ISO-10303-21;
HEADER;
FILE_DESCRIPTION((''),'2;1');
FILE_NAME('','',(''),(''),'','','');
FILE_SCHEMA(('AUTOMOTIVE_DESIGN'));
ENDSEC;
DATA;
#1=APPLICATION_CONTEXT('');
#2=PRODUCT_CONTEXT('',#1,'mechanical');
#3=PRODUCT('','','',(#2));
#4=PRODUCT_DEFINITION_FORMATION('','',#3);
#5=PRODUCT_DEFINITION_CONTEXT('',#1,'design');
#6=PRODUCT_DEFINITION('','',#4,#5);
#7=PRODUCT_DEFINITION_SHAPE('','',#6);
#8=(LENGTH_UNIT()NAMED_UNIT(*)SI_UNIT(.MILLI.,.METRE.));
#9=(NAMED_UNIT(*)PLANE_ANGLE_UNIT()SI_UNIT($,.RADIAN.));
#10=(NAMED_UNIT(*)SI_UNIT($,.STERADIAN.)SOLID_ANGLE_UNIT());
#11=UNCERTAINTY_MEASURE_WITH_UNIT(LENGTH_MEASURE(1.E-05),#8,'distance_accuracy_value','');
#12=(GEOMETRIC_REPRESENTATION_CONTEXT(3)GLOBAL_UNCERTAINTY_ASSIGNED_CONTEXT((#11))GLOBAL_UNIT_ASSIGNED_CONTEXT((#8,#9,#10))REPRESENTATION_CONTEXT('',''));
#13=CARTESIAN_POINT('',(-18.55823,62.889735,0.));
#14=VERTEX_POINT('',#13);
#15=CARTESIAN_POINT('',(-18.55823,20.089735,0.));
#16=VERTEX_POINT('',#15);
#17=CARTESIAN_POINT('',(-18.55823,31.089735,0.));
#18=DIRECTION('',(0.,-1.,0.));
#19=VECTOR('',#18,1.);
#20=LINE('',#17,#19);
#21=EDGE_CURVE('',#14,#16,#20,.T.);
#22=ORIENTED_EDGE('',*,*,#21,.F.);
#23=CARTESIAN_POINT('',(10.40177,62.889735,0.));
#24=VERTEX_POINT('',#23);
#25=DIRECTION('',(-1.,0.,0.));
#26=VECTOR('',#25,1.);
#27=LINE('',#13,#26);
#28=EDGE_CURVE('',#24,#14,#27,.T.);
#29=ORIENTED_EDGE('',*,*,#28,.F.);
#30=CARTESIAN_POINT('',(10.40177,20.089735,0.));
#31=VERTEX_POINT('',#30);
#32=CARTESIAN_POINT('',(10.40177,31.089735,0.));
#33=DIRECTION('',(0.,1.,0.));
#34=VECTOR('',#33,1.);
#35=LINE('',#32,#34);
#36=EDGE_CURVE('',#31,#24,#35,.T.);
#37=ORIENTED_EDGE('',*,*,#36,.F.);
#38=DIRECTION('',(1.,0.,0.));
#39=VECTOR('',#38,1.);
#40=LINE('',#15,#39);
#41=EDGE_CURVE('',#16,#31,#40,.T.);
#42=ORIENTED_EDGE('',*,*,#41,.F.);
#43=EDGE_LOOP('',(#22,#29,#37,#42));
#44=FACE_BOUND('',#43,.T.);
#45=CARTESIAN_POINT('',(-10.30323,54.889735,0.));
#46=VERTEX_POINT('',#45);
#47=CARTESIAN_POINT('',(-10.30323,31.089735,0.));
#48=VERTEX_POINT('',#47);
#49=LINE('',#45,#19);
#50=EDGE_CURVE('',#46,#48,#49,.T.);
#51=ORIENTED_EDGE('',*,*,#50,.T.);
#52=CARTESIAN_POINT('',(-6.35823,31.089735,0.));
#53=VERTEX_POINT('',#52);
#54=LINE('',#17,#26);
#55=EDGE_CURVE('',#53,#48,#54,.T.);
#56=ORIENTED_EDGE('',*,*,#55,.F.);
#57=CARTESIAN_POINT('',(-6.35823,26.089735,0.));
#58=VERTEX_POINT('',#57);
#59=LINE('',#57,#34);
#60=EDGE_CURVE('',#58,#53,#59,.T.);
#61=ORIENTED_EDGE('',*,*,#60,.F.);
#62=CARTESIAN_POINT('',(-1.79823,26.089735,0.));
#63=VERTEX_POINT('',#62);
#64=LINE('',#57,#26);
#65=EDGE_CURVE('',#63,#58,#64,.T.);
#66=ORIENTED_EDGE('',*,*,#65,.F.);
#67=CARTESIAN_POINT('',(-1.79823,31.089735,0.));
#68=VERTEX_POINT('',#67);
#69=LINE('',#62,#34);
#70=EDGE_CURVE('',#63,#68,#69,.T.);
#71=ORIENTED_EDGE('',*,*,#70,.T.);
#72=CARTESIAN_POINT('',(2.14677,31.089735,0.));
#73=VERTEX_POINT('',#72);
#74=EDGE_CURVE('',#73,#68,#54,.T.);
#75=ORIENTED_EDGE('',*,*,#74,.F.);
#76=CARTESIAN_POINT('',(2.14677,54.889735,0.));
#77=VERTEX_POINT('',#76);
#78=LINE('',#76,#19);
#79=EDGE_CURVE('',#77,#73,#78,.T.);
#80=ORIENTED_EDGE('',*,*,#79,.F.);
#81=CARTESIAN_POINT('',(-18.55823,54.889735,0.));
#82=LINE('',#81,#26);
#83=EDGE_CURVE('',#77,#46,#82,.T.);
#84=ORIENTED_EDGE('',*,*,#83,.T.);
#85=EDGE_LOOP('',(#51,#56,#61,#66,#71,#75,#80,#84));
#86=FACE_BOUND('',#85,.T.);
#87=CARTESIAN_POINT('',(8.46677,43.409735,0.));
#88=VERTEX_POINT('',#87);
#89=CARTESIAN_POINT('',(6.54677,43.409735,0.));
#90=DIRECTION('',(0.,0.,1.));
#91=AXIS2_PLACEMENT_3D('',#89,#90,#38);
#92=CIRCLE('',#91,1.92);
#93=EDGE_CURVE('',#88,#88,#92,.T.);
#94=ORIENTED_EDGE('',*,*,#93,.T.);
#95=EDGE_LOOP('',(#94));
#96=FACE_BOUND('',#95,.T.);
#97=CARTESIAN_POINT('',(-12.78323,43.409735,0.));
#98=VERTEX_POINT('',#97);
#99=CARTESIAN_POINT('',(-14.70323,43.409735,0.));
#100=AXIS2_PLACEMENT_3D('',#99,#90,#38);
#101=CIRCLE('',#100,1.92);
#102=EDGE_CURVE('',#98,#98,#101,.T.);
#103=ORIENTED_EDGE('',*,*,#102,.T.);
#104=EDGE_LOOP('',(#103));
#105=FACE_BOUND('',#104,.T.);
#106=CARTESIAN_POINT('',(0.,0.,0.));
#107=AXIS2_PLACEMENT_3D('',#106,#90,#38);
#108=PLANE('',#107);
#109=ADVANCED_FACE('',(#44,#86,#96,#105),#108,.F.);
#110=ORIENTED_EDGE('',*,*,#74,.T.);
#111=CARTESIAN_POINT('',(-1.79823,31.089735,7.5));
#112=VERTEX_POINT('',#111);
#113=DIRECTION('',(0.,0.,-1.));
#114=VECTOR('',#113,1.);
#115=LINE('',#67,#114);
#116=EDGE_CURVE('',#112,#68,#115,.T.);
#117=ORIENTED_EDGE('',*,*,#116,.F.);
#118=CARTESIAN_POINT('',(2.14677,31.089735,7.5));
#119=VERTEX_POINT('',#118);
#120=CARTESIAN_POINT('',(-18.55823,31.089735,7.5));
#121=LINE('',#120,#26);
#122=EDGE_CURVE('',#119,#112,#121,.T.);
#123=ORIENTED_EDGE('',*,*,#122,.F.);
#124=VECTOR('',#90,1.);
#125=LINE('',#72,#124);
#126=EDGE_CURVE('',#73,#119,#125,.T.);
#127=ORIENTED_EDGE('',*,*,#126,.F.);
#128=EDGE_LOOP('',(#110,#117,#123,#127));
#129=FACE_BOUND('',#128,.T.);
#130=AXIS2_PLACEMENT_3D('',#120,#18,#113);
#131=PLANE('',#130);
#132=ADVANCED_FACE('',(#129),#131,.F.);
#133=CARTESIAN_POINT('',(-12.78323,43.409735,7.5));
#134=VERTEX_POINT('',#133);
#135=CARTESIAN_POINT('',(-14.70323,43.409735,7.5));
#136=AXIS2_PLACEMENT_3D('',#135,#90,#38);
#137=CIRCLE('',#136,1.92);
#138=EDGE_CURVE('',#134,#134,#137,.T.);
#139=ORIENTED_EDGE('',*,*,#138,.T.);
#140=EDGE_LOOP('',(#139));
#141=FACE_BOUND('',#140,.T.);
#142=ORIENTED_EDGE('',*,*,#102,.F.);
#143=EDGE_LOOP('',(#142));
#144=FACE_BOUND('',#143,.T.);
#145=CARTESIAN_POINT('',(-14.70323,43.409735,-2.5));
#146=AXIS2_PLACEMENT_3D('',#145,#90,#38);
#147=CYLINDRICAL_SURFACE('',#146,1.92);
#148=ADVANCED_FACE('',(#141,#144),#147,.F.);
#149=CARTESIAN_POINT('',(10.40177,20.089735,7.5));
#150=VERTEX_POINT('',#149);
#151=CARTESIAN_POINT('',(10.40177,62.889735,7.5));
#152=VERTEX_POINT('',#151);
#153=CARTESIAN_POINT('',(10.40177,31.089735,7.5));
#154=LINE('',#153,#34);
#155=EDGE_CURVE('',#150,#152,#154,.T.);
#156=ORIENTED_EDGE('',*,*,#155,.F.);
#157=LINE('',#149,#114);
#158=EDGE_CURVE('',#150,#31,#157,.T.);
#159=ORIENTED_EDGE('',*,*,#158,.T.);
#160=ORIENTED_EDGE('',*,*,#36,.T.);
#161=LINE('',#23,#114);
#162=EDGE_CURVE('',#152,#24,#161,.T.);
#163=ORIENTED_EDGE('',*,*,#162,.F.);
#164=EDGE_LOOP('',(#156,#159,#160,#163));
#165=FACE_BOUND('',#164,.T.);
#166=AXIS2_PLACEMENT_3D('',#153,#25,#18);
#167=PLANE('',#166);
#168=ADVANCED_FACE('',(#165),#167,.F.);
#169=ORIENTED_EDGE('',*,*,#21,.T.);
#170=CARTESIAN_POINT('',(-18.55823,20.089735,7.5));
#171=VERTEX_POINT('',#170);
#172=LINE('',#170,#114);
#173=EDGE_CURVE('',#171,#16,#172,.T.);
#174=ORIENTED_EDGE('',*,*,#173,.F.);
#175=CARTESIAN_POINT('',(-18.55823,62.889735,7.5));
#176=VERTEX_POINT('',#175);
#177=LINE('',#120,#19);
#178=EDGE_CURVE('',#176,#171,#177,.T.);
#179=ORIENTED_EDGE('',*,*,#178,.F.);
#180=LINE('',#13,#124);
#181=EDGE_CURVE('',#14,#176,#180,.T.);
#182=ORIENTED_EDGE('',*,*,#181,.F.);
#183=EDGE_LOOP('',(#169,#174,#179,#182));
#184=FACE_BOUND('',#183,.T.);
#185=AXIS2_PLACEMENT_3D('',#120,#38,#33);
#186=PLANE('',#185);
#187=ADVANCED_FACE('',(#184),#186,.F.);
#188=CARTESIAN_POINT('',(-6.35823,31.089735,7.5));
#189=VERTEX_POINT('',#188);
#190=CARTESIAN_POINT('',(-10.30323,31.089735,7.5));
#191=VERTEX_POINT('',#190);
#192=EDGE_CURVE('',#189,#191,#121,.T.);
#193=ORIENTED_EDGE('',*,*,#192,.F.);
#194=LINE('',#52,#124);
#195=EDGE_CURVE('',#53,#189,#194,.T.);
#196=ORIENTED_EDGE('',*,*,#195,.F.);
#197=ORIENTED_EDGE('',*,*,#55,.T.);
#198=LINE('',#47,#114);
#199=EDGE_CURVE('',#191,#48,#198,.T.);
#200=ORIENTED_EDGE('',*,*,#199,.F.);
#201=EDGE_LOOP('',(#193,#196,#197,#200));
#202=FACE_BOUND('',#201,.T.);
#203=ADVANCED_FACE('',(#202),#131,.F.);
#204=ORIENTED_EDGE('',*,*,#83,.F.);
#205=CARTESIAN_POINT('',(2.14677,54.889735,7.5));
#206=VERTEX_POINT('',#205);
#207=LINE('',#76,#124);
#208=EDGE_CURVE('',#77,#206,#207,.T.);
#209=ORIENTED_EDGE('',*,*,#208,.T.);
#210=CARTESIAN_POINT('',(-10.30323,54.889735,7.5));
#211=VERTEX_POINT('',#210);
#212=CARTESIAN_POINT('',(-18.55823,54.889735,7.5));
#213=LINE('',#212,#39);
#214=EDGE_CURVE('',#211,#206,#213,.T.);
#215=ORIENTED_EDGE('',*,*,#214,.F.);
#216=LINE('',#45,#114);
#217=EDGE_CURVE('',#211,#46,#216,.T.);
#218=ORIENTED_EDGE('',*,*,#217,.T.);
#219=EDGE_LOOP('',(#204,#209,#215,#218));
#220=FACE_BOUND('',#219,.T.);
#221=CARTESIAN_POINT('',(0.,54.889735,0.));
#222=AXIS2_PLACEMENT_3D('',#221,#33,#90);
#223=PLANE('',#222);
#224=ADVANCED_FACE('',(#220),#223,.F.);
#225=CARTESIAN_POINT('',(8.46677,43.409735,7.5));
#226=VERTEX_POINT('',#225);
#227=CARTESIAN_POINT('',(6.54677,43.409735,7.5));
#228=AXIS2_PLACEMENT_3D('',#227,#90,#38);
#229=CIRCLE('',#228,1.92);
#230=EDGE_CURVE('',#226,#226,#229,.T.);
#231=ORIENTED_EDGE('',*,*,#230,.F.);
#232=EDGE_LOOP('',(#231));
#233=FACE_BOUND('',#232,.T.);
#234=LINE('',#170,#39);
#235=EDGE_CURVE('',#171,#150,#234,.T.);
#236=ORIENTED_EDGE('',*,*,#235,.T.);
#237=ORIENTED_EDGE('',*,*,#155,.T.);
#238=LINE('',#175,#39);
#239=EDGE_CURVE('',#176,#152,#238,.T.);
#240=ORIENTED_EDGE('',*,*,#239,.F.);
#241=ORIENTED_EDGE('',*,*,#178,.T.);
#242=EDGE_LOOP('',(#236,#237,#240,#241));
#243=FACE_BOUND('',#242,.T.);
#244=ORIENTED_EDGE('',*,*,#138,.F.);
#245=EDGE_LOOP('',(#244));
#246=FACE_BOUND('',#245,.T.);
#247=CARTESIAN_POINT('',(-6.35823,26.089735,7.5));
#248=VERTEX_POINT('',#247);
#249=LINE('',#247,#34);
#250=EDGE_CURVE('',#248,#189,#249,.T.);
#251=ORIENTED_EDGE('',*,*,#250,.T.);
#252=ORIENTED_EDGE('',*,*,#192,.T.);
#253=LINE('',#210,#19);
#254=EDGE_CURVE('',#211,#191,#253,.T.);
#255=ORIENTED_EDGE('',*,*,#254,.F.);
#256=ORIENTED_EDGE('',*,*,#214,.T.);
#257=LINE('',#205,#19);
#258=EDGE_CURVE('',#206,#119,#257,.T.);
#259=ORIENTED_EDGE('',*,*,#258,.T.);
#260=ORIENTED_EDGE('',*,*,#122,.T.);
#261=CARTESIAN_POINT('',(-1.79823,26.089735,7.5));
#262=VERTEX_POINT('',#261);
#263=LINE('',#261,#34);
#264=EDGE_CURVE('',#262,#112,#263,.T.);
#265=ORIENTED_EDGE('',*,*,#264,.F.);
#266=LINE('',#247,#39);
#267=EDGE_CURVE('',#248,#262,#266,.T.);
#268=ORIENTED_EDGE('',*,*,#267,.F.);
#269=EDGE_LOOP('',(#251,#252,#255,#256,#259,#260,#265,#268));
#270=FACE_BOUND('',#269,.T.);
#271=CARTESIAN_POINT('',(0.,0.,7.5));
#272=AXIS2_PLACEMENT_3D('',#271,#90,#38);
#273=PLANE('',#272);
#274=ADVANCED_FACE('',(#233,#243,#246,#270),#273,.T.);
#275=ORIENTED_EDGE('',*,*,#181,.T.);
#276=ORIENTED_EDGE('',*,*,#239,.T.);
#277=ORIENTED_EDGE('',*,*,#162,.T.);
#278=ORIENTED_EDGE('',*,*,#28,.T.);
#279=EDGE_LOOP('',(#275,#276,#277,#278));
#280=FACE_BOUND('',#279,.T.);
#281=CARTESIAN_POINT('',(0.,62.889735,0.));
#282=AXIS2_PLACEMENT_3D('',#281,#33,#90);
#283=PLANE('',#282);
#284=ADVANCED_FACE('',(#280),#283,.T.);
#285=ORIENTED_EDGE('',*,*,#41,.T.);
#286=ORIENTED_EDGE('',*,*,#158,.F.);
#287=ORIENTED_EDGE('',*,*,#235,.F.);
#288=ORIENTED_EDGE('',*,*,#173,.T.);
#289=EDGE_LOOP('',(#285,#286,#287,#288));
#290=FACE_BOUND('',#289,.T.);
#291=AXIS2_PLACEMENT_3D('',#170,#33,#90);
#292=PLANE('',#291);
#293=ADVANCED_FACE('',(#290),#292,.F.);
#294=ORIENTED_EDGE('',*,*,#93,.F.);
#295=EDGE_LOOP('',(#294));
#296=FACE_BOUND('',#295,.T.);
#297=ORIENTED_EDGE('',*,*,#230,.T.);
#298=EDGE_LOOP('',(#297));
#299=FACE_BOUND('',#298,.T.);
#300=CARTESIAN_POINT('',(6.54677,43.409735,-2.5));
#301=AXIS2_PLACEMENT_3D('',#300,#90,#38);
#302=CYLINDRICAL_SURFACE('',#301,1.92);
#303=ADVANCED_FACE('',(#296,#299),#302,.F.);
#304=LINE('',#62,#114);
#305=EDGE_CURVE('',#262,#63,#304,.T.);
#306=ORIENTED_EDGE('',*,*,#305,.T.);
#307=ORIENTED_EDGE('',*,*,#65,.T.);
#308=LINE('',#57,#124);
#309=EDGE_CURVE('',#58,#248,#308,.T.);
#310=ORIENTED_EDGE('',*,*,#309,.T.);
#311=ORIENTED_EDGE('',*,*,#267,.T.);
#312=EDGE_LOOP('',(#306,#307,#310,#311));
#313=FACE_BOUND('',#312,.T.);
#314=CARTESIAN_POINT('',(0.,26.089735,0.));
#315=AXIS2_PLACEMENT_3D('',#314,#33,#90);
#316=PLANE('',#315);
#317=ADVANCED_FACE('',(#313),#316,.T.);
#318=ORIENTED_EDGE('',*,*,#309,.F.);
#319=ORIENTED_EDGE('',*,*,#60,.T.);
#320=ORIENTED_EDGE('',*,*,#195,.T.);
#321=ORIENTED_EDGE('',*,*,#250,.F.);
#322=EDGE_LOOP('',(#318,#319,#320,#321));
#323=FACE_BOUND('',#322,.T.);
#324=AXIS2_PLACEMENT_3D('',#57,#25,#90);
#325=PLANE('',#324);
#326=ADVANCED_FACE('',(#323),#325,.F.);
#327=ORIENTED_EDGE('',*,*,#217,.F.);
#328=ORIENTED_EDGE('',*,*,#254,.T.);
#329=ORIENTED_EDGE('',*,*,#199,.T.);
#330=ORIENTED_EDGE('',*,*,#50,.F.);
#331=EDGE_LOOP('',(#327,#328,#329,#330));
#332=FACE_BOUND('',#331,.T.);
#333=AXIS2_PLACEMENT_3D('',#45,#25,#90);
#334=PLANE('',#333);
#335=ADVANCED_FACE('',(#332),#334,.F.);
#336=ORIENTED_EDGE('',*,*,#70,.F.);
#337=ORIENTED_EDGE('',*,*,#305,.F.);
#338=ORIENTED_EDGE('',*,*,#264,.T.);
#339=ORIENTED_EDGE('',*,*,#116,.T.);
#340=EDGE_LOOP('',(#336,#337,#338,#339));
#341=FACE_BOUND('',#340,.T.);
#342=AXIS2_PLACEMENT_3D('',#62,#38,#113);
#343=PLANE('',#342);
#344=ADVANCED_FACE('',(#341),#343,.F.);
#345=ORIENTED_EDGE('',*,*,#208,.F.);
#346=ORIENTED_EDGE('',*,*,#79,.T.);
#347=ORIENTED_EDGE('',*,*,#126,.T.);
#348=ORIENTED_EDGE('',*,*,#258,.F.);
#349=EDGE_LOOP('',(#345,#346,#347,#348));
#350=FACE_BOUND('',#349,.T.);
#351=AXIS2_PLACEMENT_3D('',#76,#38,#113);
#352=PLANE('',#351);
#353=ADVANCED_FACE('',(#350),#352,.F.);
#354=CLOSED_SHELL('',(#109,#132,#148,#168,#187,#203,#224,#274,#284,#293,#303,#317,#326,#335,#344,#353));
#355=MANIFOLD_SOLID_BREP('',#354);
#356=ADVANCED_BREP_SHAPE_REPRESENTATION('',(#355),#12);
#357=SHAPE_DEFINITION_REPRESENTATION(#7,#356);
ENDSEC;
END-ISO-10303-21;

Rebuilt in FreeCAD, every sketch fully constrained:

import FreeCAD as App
import Part
import Sketcher

V = App.Vector
Q = App.Units.Quantity


def add_polygon(sketch, points):
    """Adds a closed chain of lines whose ends are joined by coincident constraints."""
    first, n = sketch.GeometryCount, len(points)
    for a, b in zip(points, points[1:] + points[:1]):
        sketch.addGeometry(Part.LineSegment(App.Vector(*a, 0), App.Vector(*b, 0)), False)
    for i in range(n):
        sketch.addConstraint(Sketcher.Constraint("Coincident", first + i, 2, first + (i + 1) % n, 1))

doc = App.newDocument("Part")
params = doc.addObject("Spreadsheet::Sheet", "Params")
for row, (alias, value) in enumerate([
    ("sketch1_height", "11 mm"),
    ("sketch1_width", "28.96 mm"),
    ("pad1_length", "7.5 mm"),
    ("sketch2_height", "7.5 mm"),
    ("pad2_length", "23.8 mm"),
    ("sketch3_height", "7.5 mm"),
    ("sketch3_width", "28.96 mm"),
    ("pad3_length", "8 mm"),
    ("sketch4_height", "7.5 mm"),
    ("sketch4_width", "4.56 mm"),
    ("pocket1_length", "5 mm"),
    ("sketch5_diameter", "3.84 mm"),
    ("pocket2_length", "10 mm"),
], start=1):
    params.set(f"A{row}", alias)
    params.set(f"B{row}", "=" + value)
    params.setAlias(f"B{row}", alias)

body = doc.addObject("PartDesign::Body", "Body")

sketch1 = body.newObject("Sketcher::SketchObject", "Sketch")
sketch1.AttachmentSupport = (doc.getObject("XY_Plane"), [""])
sketch1.MapMode = "FlatFace"
add_polygon(sketch1, [(-19, 31), (-19, 20), (10, 20), (10, 31)])
sketch1.addConstraint([
    Sketcher.Constraint("Vertical", 0),
    Sketcher.Constraint("Horizontal", 1),
    Sketcher.Constraint("Vertical", 2),
    Sketcher.Constraint("Horizontal", 3),
    Sketcher.Constraint("DistanceY", 0, 2, 0, 1, Q("11 mm")),
    Sketcher.Constraint("DistanceX", 1, 1, 1, 2, Q("28.96 mm")),
    Sketcher.Constraint("DistanceX", 0, 2, -1, 1, Q("18.55823 mm")),
    Sketcher.Constraint("DistanceY", -1, 1, 0, 2, Q("20.089735 mm")),
])
sketch1.setExpression("Constraints[8]", "Params.sketch1_height")
sketch1.setExpression("Constraints[9]", "Params.sketch1_width")
pad1 = body.newObject("PartDesign::Pad", "Pad")
pad1.Profile = sketch1
pad1.setExpression("Length", "Params.pad1_length")

sketch2 = body.newObject("Sketcher::SketchObject", "Sketch001")
sketch2.AttachmentSupport = (doc.getObject("XZ_Plane"), [""])
sketch2.MapMode = "FlatFace"
sketch2.AttachmentOffset = App.Placement(V(0, 0, -31.089735), App.Rotation())
add_polygon(sketch2, [(-19, 0), (-19, 8), (-10, 8), (-10, 0)])
add_polygon(sketch2, [(2, 0), (2, 8), (10, 8), (10, 0)])
sketch2.addConstraint([
    Sketcher.Constraint("Vertical", 0),
    Sketcher.Constraint("Horizontal", 1),
    Sketcher.Constraint("Vertical", 2),
    Sketcher.Constraint("Horizontal", 3),
    Sketcher.Constraint("Vertical", 4),
    Sketcher.Constraint("Horizontal", 5),
    Sketcher.Constraint("Vertical", 6),
    Sketcher.Constraint("Horizontal", 7),
    Sketcher.Constraint("PointOnObject", 2, 2, -1),
    Sketcher.Constraint("PointOnObject", 6, 2, -1),
    Sketcher.Constraint("Horizontal", 1, 2, 4, 2),
    Sketcher.Constraint("Equal", 3, 5),
    Sketcher.Constraint("DistanceY", 0, 1, 0, 2, Q("7.5 mm")),
    Sketcher.Constraint("DistanceX", 1, 1, 1, 2, Q("8.255 mm")),
    Sketcher.Constraint("DistanceX", 1, 2, 4, 2, Q("12.45 mm")),
    Sketcher.Constraint("DistanceX", 0, 2, -1, 1, Q("18.55823 mm")),
])
sketch2.setExpression("Constraints[20]", "Params.sketch2_height")
pad2 = body.newObject("PartDesign::Pad", "Pad001")
pad2.Profile = sketch2
pad2.setExpression("Length", "Params.pad2_length")
pad2.Reversed = True

sketch3 = body.newObject("Sketcher::SketchObject", "Sketch002")
sketch3.AttachmentSupport = (doc.getObject("XZ_Plane"), [""])
sketch3.MapMode = "FlatFace"
sketch3.AttachmentOffset = App.Placement(V(0, 0, -54.889735), App.Rotation())
add_polygon(sketch3, [(-19, 0), (-19, 8), (10, 8), (10, 0)])
sketch3.addConstraint([
    Sketcher.Constraint("Vertical", 0),
    Sketcher.Constraint("Horizontal", 1),
    Sketcher.Constraint("Vertical", 2),
    Sketcher.Constraint("Horizontal", 3),
    Sketcher.Constraint("PointOnObject", 2, 2, -1),
    Sketcher.Constraint("DistanceY", 0, 1, 0, 2, Q("7.5 mm")),
    Sketcher.Constraint("DistanceX", 1, 1, 1, 2, Q("28.96 mm")),
    Sketcher.Constraint("DistanceX", 0, 2, -1, 1, Q("18.55823 mm")),
])
sketch3.setExpression("Constraints[9]", "Params.sketch3_height")
sketch3.setExpression("Constraints[10]", "Params.sketch3_width")
pad3 = body.newObject("PartDesign::Pad", "Pad002")
pad3.Profile = sketch3
pad3.setExpression("Length", "Params.pad3_length")
pad3.Reversed = True

sketch4 = body.newObject("Sketcher::SketchObject", "Sketch003")
sketch4.AttachmentSupport = (doc.getObject("XZ_Plane"), [""])
sketch4.MapMode = "FlatFace"
sketch4.AttachmentOffset = App.Placement(V(0, 0, -31.089735), App.Rotation())
add_polygon(sketch4, [(-6.4, 0), (-6.4, 7.5), (-1.8, 7.5), (-1.8, 0)])
sketch4.addConstraint([
    Sketcher.Constraint("Vertical", 0),
    Sketcher.Constraint("Horizontal", 1),
    Sketcher.Constraint("Vertical", 2),
    Sketcher.Constraint("Horizontal", 3),
    Sketcher.Constraint("PointOnObject", 2, 2, -1),
    Sketcher.Constraint("DistanceY", 0, 1, 0, 2, Q("7.5 mm")),
    Sketcher.Constraint("DistanceX", 1, 1, 1, 2, Q("4.56 mm")),
    Sketcher.Constraint("DistanceX", 0, 2, -1, 1, Q("6.35823 mm")),
])
sketch4.setExpression("Constraints[9]", "Params.sketch4_height")
sketch4.setExpression("Constraints[10]", "Params.sketch4_width")
pocket1 = body.newObject("PartDesign::Pocket", "Pocket")
pocket1.Profile = sketch4
pocket1.setExpression("Length", "Params.pocket1_length")
pocket1.Reversed = True

sketch5 = body.newObject("Sketcher::SketchObject", "Sketch004")
sketch5.AttachmentSupport = (doc.getObject("XY_Plane"), [""])
sketch5.MapMode = "FlatFace"
sketch5.AttachmentOffset = App.Placement(V(0, 0, 7.5), App.Rotation())
sketch5.addGeometry([
    Part.Circle(V(-14.7, 43.4, 0), V(0, 0, 1), 1.9),
    Part.Circle(V(6.5, 43.4, 0), V(0, 0, 1), 1.9),
], False)
sketch5.addConstraint([
    Sketcher.Constraint("Equal", 0, 1),
    Sketcher.Constraint("Horizontal", 0, 3, 1, 3),
    Sketcher.Constraint("Diameter", 0, Q("3.84 mm")),
    Sketcher.Constraint("DistanceX", 0, 3, 1, 3, Q("21.25 mm")),
    Sketcher.Constraint("DistanceX", 0, 3, -1, 1, Q("14.70323 mm")),
    Sketcher.Constraint("DistanceY", -1, 1, 0, 3, Q("43.409735 mm")),
])
sketch5.setExpression("Constraints[2]", "Params.sketch5_diameter")
pocket2 = body.newObject("PartDesign::Pocket", "Pocket001")
pocket2.Profile = sketch5
pocket2.setExpression("Length", "Params.pocket2_length")

doc.recompute()
